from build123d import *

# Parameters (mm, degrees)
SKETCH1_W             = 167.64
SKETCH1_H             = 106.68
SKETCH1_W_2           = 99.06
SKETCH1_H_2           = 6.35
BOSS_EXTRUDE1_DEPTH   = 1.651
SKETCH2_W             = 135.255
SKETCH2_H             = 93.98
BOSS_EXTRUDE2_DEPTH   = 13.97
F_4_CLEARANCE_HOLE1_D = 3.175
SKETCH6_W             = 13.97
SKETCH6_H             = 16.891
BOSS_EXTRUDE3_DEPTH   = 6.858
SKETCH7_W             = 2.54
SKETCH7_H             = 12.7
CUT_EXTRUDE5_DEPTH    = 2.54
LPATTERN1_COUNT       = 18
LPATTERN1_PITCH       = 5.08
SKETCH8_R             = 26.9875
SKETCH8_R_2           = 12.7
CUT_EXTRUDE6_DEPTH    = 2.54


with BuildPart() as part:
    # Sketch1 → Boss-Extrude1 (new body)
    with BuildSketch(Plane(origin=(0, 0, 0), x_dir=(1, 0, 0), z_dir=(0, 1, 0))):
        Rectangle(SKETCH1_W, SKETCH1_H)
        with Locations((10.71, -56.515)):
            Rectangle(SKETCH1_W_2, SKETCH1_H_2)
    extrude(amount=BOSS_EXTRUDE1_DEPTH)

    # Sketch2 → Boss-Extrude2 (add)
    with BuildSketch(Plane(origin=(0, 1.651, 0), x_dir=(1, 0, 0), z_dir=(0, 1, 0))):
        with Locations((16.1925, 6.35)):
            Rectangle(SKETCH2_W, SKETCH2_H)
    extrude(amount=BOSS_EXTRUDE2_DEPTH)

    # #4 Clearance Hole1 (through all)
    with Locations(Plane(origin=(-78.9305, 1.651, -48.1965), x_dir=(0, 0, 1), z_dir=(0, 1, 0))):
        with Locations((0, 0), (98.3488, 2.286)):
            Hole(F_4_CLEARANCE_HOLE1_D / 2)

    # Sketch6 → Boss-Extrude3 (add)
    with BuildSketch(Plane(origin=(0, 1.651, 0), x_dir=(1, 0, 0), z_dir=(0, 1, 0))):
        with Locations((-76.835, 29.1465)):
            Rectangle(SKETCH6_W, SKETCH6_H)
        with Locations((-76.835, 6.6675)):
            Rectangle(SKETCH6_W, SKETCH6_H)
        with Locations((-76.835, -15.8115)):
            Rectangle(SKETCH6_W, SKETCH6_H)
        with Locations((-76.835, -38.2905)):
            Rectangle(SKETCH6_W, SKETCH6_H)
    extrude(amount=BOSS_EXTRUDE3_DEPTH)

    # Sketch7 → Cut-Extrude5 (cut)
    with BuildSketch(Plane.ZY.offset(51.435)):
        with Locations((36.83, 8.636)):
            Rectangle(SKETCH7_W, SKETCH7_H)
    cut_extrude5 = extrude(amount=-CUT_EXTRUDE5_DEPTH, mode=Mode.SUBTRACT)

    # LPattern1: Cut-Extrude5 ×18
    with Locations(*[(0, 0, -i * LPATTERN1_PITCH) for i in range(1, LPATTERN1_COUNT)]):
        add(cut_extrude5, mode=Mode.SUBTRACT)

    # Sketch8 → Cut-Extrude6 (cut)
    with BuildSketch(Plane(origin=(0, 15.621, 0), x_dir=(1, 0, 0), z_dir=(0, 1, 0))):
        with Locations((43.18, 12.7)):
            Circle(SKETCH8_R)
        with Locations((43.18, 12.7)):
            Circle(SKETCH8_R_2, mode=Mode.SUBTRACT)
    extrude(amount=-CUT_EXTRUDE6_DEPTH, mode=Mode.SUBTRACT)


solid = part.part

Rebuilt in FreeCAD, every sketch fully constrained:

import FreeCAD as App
import Part
import Sketcher

V = App.Vector
Q = App.Units.Quantity

doc = App.newDocument("Part")
body = doc.addObject("PartDesign::Body", "Body")

# Sketch on XZ plane
sketch1 = body.newObject("Sketcher::SketchObject", "Sketch")
sketch1.AttachmentSupport = (doc.getObject("XZ_Plane"), [""])
sketch1.MapMode = "FlatFace"
sketch1.addGeometry([
    Part.LineSegment(V(-84, -53, 0), V(-84, 53, 0)),  # 0
    Part.LineSegment(V(-84, 53, 0), V(-39, 53, 0)),  # 1
    Part.LineSegment(V(-39, 53, 0), V(-39, 60, 0)),  # 2
    Part.LineSegment(V(-39, 60, 0), V(60, 60, 0)),  # 3
    Part.LineSegment(V(60, 60, 0), V(60, 53, 0)),  # 4
    Part.LineSegment(V(60, 53, 0), V(84, 53, 0)),  # 5
    Part.LineSegment(V(84, 53, 0), V(84, -53, 0)),  # 6
    Part.LineSegment(V(84, -53, 0), V(-84, -53, 0)),  # 7
], False)
sketch1.addConstraint([
    Sketcher.Constraint("Coincident", 0, 2, 1, 1),
    Sketcher.Constraint("Coincident", 1, 2, 2, 1),
    Sketcher.Constraint("Coincident", 2, 2, 3, 1),
    Sketcher.Constraint("Coincident", 3, 2, 4, 1),
    Sketcher.Constraint("Coincident", 4, 2, 5, 1),
    Sketcher.Constraint("Coincident", 5, 2, 6, 1),
    Sketcher.Constraint("Coincident", 6, 2, 7, 1),
    Sketcher.Constraint("Coincident", 7, 2, 0, 1),
    Sketcher.Constraint("Vertical", 0),
    Sketcher.Constraint("Horizontal", 1),
    Sketcher.Constraint("Vertical", 2),
    Sketcher.Constraint("Horizontal", 3),
    Sketcher.Constraint("Vertical", 4),
    Sketcher.Constraint("Horizontal", 5),
    Sketcher.Constraint("Vertical", 6),
    Sketcher.Constraint("Horizontal", 7),
    Sketcher.Constraint("Symmetric", 0, 2, 6, 2, -1, 1),
    Sketcher.Constraint("Horizontal", 1, 2, 4, 2),
    Sketcher.Constraint("DistanceX", 3, 1, 3, 2, Q("3.9 in")),
    Sketcher.Constraint("DistanceX", 7, 2, 7, 1, Q("6.6 in")),
    Sketcher.Constraint("DistanceY", 0, 1, 0, 2, Q("4.2 in")),
    Sketcher.Constraint("DistanceY", 2, 1, 2, 2, Q("0.25 in")),
    Sketcher.Constraint("DistanceX", 1, 1, 1, 2, Q("45 mm")),
])
pad1 = body.newObject("PartDesign::Pad", "Pad")
pad1.Profile = sketch1
pad1.Length = Q("0.065 in")
pad1.Reversed = True

# Sketch on XZ plane
sketch2 = body.newObject("Sketcher::SketchObject", "Sketch001")
sketch2.AttachmentSupport = (doc.getObject("XZ_Plane"), [""])
sketch2.MapMode = "FlatFace"
sketch2.AttachmentOffset = App.Placement(V(0, 0, -0.065 * 25.4), App.Rotation())
sketch2.addGeometry([
    Part.LineSegment(V(-51, -53, 0), V(-51, 41, 0)),
    Part.LineSegment(V(-51, 41, 0), V(84, 41, 0)),
    Part.LineSegment(V(84, 41, 0), V(84, -53, 0)),
    Part.LineSegment(V(84, -53, 0), V(-51, -53, 0)),
], False)
sketch2.addConstraint([
    Sketcher.Constraint("Coincident", 0, 2, 1, 1),
    Sketcher.Constraint("Coincident", 1, 2, 2, 1),
    Sketcher.Constraint("Coincident", 2, 2, 3, 1),
    Sketcher.Constraint("Coincident", 3, 2, 0, 1),
    Sketcher.Constraint("Vertical", 0),
    Sketcher.Constraint("Horizontal", 1),
    Sketcher.Constraint("Vertical", 2),
    Sketcher.Constraint("Horizontal", 3),
    Sketcher.Constraint("DistanceY", 0, 1, 0, 2, Q("3.7 in")),
    Sketcher.Constraint("DistanceY", -1, 1, 0, 2, Q("1.6 in")),
    Sketcher.Constraint("DistanceX", -1, 1, 1, 2, Q("3.3 in")),
    Sketcher.Constraint("DistanceX", 1, 1, 1, 2, Q("5.325 in")),
])
pad2 = body.newObject("PartDesign::Pad", "Pad001")
pad2.Profile = sketch2
pad2.Length = Q("0.55 in")
pad2.Reversed = True

# Sketch on XZ plane
sketch3 = body.newObject("Sketcher::SketchObject", "Sketch002")
sketch3.AttachmentSupport = (doc.getObject("XZ_Plane"), [""])
sketch3.MapMode = "FlatFace"
sketch3.AttachmentOffset = App.Placement(V(0, 0, -0.065 * 25.4), App.Rotation())
sketch3.addGeometry([
    Part.Circle(V(-78.9, -48.2, 0), V(0, 0, 1), 1.6),
    Part.Circle(V(-76.6, 50.2, 0), V(0, 0, 1), 1.6),
], False)
sketch3.addConstraint([
    Sketcher.Constraint("Equal", 0, 1),
    Sketcher.Constraint("Diameter", 0, Q("0.125 in")),
    Sketcher.Constraint("DistanceX", 0, 3, 1, 3, Q("0.09 in")),
    Sketcher.Constraint("DistanceY", 0, 3, 1, 3, Q("3.872 in")),
    Sketcher.Constraint("DistanceX", 0, 3, -1, 1, Q("3.1075 in")),
    Sketcher.Constraint("DistanceY", 0, 3, -1, 1, Q("1.8975 in")),
])
doc.recompute()
hole = body.newObject("PartDesign::Hole", "Hole")
hole.Profile = sketch3
hole.ThreadType = "None"
hole.Diameter = Q("0.125 in")
hole.DepthType = "ThroughAll"
hole.Reversed = True

# Sketch on XZ plane
sketch4 = body.newObject("Sketcher::SketchObject", "Sketch003")
sketch4.AttachmentSupport = (doc.getObject("XZ_Plane"), [""])
sketch4.MapMode = "FlatFace"
sketch4.AttachmentOffset = App.Placement(V(0, 0, -0.065 * 25.4), App.Rotation())
sketch4.addGeometry([
    Part.LineSegment(V(-84, -38, 0), V(-84, -21, 0)),  # 0
    Part.LineSegment(V(-84, -21, 0), V(-70, -21, 0)),  # 1
    Part.LineSegment(V(-70, -21, 0), V(-70, -38, 0)),  # 2
    Part.LineSegment(V(-70, -38, 0), V(-84, -38, 0)),  # 3
    Part.LineSegment(V(-84, -15, 0), V(-84, 2, 0)),  # 4
    Part.LineSegment(V(-84, 2, 0), V(-70, 2, 0)),  # 5
    Part.LineSegment(V(-70, 2, 0), V(-70, -15, 0)),  # 6
    Part.LineSegment(V(-70, -15, 0), V(-84, -15, 0)),  # 7
    Part.LineSegment(V(-84, 7, 0), V(-84, 24, 0)),  # 8
    Part.LineSegment(V(-84, 24, 0), V(-70, 24, 0)),  # 9
    Part.LineSegment(V(-70, 24, 0), V(-70, 7, 0)),  # 10
    Part.LineSegment(V(-70, 7, 0), V(-84, 7, 0)),  # 11
    Part.LineSegment(V(-84, 30, 0), V(-84, 47, 0)),  # 12
    Part.LineSegment(V(-84, 47, 0), V(-70, 47, 0)),  # 13
    Part.LineSegment(V(-70, 47, 0), V(-70, 30, 0)),  # 14
    Part.LineSegment(V(-70, 30, 0), V(-84, 30, 0)),  # 15
], False)
sketch4.addConstraint([
    Sketcher.Constraint("Coincident", 0, 2, 1, 1),
    Sketcher.Constraint("Coincident", 1, 2, 2, 1),
    Sketcher.Constraint("Coincident", 2, 2, 3, 1),
    Sketcher.Constraint("Coincident", 3, 2, 0, 1),
    Sketcher.Constraint("Coincident", 4, 2, 5, 1),
    Sketcher.Constraint("Coincident", 5, 2, 6, 1),
    Sketcher.Constraint("Coincident", 6, 2, 7, 1),
    Sketcher.Constraint("Coincident", 7, 2, 4, 1),
    Sketcher.Constraint("Coincident", 8, 2, 9, 1),
    Sketcher.Constraint("Coincident", 9, 2, 10, 1),
    Sketcher.Constraint("Coincident", 10, 2, 11, 1),
    Sketcher.Constraint("Coincident", 11, 2, 8, 1),
    Sketcher.Constraint("Coincident", 12, 2, 13, 1),
    Sketcher.Constraint("Coincident", 13, 2, 14, 1),
    Sketcher.Constraint("Coincident", 14, 2, 15, 1),
    Sketcher.Constraint("Coincident", 15, 2, 12, 1),
    Sketcher.Constraint("Vertical", 0),
    Sketcher.Constraint("Horizontal", 1),
    Sketcher.Constraint("Vertical", 2),
    Sketcher.Constraint("Horizontal", 3),
    Sketcher.Constraint("Vertical", 4),
    Sketcher.Constraint("Horizontal", 5),
    Sketcher.Constraint("Vertical", 6),
    Sketcher.Constraint("Horizontal", 7),
    Sketcher.Constraint("Vertical", 8),
    Sketcher.Constraint("Horizontal", 9),
    Sketcher.Constraint("Vertical", 10),
    Sketcher.Constraint("Horizontal", 11),
    Sketcher.Constraint("Vertical", 12),
    Sketcher.Constraint("Horizontal", 13),
    Sketcher.Constraint("Vertical", 14),
    Sketcher.Constraint("Horizontal", 15),
    Sketcher.Constraint("Vertical", 3, 2, 4, 2),
    Sketcher.Constraint("Vertical", 2, 2, 5, 2),
    Sketcher.Constraint("Vertical", 7, 2, 8, 2),
    Sketcher.Constraint("Vertical", 6, 2, 9, 2),
    Sketcher.Constraint("Vertical", 11, 2, 12, 2),
    Sketcher.Constraint("Vertical", 10, 2, 13, 2),
    Sketcher.Constraint("Equal", 2, 4),
    Sketcher.Constraint("Equal", 6, 8),
    Sketcher.Constraint("Equal", 10, 12),
    Sketcher.Constraint("DistanceX", 1, 1, 1, 2, Q("0.55 in")),
    Sketcher.Constraint("DistanceX", 0, 2, -1, 1, Q("3.3 in")),
    Sketcher.Constraint("DistanceY", 0, 1, 0, 2, Q("0.665 in")),
    Sketcher.Constraint("DistanceY", 2, 2, -1, 1, Q("1.48 in")),
    Sketcher.Constraint("DistanceY", -1, 1, 4, 2, Q("0.07 in")),
    Sketcher.Constraint("DistanceY", -1, 1, 10, 2, Q("0.29 in")),
    Sketcher.Constraint("DistanceY", -1, 1, 12, 2, Q("1.84 in")),
])
pad3 = body.newObject("PartDesign::Pad", "Pad002")
pad3.Profile = sketch4
pad3.Length = Q("0.27 in")
pad3.Reversed = True

# Sketch on YZ plane
sketch5 = body.newObject("Sketcher::SketchObject", "Sketch004")
sketch5.AttachmentSupport = (doc.getObject("YZ_Plane"), [""])
sketch5.MapMode = "FlatFace"
sketch5.AttachmentOffset = App.Placement(V(0, 0, -2.025 * 25.4), App.Rotation())
sketch5.addGeometry([
    Part.LineSegment(V(15, 35.6, 0), V(2.3, 35.6, 0)),
    Part.LineSegment(V(2.3, 35.6, 0), V(2.3, 38.1, 0)),
    Part.LineSegment(V(2.3, 38.1, 0), V(15, 38.1, 0)),
    Part.LineSegment(V(15, 38.1, 0), V(15, 35.6, 0)),
], False)
sketch5.addConstraint([
    Sketcher.Constraint("Coincident", 0, 2, 1, 1),
    Sketcher.Constraint("Coincident", 1, 2, 2, 1),
    Sketcher.Constraint("Coincident", 2, 2, 3, 1),
    Sketcher.Constraint("Coincident", 3, 2, 0, 1),
    Sketcher.Constraint("Horizontal", 0),
    Sketcher.Constraint("Vertical", 1),
    Sketcher.Constraint("Horizontal", 2),
    Sketcher.Constraint("Vertical", 3),
    Sketcher.Constraint("DistanceX", 0, 2, 0, 1, Q("0.5 in")),
    Sketcher.Constraint("DistanceY", 1, 1, 1, 2, Q("0.1 in")),
    Sketcher.Constraint("DistanceY", -1, 1, 0, 2, Q("1.4 in")),
    Sketcher.Constraint("DistanceX", -1, 1, 0, 2, Q("0.09 in")),
])
pocket1 = body.newObject("PartDesign::Pocket", "Pocket")
pocket1.Profile = sketch5
pocket1.Length = Q("0.1 in")
pocket1.Reversed = True
doc.recompute()

linearpattern = body.newObject("PartDesign::LinearPattern", "LinearPattern")
linearpattern.Originals = [pocket1]
linearpattern.Direction = (doc.getObject("Z_Axis"), [""])
linearpattern.Mode = "offset"
linearpattern.Offset = Q("0.2 in")
linearpattern.Occurrences = 18
linearpattern.Reversed = True
body.Tip = linearpattern

# Sketch on XZ plane
sketch6 = body.newObject("Sketcher::SketchObject", "Sketch005")
sketch6.AttachmentSupport = (doc.getObject("XZ_Plane"), [""])
sketch6.MapMode = "FlatFace"
sketch6.AttachmentOffset = App.Placement(V(0, 0, -0.615 * 25.4), App.Rotation())
sketch6.addGeometry([
    Part.Circle(V(43, -13, 0), V(0, 0, 1), 27),
    Part.Circle(V(43, -13, 0), V(0, 0, 1), 13),
], False)
sketch6.addConstraint([
    Sketcher.Constraint("Coincident", 1, 3, 0, 3),
    Sketcher.Constraint("Diameter", 1, Q("1 in")),
    Sketcher.Constraint("Diameter", 0, Q("2.125 in")),
    Sketcher.Constraint("DistanceX", -1, 1, 0, 3, Q("1.7 in")),
    Sketcher.Constraint("DistanceY", 0, 3, -1, 1, Q("0.5 in")),
])
pocket2 = body.newObject("PartDesign::Pocket", "Pocket001")
pocket2.Profile = sketch6
pocket2.Length = Q("0.1 in")
pocket2.Reversed = True

doc.recompute()
